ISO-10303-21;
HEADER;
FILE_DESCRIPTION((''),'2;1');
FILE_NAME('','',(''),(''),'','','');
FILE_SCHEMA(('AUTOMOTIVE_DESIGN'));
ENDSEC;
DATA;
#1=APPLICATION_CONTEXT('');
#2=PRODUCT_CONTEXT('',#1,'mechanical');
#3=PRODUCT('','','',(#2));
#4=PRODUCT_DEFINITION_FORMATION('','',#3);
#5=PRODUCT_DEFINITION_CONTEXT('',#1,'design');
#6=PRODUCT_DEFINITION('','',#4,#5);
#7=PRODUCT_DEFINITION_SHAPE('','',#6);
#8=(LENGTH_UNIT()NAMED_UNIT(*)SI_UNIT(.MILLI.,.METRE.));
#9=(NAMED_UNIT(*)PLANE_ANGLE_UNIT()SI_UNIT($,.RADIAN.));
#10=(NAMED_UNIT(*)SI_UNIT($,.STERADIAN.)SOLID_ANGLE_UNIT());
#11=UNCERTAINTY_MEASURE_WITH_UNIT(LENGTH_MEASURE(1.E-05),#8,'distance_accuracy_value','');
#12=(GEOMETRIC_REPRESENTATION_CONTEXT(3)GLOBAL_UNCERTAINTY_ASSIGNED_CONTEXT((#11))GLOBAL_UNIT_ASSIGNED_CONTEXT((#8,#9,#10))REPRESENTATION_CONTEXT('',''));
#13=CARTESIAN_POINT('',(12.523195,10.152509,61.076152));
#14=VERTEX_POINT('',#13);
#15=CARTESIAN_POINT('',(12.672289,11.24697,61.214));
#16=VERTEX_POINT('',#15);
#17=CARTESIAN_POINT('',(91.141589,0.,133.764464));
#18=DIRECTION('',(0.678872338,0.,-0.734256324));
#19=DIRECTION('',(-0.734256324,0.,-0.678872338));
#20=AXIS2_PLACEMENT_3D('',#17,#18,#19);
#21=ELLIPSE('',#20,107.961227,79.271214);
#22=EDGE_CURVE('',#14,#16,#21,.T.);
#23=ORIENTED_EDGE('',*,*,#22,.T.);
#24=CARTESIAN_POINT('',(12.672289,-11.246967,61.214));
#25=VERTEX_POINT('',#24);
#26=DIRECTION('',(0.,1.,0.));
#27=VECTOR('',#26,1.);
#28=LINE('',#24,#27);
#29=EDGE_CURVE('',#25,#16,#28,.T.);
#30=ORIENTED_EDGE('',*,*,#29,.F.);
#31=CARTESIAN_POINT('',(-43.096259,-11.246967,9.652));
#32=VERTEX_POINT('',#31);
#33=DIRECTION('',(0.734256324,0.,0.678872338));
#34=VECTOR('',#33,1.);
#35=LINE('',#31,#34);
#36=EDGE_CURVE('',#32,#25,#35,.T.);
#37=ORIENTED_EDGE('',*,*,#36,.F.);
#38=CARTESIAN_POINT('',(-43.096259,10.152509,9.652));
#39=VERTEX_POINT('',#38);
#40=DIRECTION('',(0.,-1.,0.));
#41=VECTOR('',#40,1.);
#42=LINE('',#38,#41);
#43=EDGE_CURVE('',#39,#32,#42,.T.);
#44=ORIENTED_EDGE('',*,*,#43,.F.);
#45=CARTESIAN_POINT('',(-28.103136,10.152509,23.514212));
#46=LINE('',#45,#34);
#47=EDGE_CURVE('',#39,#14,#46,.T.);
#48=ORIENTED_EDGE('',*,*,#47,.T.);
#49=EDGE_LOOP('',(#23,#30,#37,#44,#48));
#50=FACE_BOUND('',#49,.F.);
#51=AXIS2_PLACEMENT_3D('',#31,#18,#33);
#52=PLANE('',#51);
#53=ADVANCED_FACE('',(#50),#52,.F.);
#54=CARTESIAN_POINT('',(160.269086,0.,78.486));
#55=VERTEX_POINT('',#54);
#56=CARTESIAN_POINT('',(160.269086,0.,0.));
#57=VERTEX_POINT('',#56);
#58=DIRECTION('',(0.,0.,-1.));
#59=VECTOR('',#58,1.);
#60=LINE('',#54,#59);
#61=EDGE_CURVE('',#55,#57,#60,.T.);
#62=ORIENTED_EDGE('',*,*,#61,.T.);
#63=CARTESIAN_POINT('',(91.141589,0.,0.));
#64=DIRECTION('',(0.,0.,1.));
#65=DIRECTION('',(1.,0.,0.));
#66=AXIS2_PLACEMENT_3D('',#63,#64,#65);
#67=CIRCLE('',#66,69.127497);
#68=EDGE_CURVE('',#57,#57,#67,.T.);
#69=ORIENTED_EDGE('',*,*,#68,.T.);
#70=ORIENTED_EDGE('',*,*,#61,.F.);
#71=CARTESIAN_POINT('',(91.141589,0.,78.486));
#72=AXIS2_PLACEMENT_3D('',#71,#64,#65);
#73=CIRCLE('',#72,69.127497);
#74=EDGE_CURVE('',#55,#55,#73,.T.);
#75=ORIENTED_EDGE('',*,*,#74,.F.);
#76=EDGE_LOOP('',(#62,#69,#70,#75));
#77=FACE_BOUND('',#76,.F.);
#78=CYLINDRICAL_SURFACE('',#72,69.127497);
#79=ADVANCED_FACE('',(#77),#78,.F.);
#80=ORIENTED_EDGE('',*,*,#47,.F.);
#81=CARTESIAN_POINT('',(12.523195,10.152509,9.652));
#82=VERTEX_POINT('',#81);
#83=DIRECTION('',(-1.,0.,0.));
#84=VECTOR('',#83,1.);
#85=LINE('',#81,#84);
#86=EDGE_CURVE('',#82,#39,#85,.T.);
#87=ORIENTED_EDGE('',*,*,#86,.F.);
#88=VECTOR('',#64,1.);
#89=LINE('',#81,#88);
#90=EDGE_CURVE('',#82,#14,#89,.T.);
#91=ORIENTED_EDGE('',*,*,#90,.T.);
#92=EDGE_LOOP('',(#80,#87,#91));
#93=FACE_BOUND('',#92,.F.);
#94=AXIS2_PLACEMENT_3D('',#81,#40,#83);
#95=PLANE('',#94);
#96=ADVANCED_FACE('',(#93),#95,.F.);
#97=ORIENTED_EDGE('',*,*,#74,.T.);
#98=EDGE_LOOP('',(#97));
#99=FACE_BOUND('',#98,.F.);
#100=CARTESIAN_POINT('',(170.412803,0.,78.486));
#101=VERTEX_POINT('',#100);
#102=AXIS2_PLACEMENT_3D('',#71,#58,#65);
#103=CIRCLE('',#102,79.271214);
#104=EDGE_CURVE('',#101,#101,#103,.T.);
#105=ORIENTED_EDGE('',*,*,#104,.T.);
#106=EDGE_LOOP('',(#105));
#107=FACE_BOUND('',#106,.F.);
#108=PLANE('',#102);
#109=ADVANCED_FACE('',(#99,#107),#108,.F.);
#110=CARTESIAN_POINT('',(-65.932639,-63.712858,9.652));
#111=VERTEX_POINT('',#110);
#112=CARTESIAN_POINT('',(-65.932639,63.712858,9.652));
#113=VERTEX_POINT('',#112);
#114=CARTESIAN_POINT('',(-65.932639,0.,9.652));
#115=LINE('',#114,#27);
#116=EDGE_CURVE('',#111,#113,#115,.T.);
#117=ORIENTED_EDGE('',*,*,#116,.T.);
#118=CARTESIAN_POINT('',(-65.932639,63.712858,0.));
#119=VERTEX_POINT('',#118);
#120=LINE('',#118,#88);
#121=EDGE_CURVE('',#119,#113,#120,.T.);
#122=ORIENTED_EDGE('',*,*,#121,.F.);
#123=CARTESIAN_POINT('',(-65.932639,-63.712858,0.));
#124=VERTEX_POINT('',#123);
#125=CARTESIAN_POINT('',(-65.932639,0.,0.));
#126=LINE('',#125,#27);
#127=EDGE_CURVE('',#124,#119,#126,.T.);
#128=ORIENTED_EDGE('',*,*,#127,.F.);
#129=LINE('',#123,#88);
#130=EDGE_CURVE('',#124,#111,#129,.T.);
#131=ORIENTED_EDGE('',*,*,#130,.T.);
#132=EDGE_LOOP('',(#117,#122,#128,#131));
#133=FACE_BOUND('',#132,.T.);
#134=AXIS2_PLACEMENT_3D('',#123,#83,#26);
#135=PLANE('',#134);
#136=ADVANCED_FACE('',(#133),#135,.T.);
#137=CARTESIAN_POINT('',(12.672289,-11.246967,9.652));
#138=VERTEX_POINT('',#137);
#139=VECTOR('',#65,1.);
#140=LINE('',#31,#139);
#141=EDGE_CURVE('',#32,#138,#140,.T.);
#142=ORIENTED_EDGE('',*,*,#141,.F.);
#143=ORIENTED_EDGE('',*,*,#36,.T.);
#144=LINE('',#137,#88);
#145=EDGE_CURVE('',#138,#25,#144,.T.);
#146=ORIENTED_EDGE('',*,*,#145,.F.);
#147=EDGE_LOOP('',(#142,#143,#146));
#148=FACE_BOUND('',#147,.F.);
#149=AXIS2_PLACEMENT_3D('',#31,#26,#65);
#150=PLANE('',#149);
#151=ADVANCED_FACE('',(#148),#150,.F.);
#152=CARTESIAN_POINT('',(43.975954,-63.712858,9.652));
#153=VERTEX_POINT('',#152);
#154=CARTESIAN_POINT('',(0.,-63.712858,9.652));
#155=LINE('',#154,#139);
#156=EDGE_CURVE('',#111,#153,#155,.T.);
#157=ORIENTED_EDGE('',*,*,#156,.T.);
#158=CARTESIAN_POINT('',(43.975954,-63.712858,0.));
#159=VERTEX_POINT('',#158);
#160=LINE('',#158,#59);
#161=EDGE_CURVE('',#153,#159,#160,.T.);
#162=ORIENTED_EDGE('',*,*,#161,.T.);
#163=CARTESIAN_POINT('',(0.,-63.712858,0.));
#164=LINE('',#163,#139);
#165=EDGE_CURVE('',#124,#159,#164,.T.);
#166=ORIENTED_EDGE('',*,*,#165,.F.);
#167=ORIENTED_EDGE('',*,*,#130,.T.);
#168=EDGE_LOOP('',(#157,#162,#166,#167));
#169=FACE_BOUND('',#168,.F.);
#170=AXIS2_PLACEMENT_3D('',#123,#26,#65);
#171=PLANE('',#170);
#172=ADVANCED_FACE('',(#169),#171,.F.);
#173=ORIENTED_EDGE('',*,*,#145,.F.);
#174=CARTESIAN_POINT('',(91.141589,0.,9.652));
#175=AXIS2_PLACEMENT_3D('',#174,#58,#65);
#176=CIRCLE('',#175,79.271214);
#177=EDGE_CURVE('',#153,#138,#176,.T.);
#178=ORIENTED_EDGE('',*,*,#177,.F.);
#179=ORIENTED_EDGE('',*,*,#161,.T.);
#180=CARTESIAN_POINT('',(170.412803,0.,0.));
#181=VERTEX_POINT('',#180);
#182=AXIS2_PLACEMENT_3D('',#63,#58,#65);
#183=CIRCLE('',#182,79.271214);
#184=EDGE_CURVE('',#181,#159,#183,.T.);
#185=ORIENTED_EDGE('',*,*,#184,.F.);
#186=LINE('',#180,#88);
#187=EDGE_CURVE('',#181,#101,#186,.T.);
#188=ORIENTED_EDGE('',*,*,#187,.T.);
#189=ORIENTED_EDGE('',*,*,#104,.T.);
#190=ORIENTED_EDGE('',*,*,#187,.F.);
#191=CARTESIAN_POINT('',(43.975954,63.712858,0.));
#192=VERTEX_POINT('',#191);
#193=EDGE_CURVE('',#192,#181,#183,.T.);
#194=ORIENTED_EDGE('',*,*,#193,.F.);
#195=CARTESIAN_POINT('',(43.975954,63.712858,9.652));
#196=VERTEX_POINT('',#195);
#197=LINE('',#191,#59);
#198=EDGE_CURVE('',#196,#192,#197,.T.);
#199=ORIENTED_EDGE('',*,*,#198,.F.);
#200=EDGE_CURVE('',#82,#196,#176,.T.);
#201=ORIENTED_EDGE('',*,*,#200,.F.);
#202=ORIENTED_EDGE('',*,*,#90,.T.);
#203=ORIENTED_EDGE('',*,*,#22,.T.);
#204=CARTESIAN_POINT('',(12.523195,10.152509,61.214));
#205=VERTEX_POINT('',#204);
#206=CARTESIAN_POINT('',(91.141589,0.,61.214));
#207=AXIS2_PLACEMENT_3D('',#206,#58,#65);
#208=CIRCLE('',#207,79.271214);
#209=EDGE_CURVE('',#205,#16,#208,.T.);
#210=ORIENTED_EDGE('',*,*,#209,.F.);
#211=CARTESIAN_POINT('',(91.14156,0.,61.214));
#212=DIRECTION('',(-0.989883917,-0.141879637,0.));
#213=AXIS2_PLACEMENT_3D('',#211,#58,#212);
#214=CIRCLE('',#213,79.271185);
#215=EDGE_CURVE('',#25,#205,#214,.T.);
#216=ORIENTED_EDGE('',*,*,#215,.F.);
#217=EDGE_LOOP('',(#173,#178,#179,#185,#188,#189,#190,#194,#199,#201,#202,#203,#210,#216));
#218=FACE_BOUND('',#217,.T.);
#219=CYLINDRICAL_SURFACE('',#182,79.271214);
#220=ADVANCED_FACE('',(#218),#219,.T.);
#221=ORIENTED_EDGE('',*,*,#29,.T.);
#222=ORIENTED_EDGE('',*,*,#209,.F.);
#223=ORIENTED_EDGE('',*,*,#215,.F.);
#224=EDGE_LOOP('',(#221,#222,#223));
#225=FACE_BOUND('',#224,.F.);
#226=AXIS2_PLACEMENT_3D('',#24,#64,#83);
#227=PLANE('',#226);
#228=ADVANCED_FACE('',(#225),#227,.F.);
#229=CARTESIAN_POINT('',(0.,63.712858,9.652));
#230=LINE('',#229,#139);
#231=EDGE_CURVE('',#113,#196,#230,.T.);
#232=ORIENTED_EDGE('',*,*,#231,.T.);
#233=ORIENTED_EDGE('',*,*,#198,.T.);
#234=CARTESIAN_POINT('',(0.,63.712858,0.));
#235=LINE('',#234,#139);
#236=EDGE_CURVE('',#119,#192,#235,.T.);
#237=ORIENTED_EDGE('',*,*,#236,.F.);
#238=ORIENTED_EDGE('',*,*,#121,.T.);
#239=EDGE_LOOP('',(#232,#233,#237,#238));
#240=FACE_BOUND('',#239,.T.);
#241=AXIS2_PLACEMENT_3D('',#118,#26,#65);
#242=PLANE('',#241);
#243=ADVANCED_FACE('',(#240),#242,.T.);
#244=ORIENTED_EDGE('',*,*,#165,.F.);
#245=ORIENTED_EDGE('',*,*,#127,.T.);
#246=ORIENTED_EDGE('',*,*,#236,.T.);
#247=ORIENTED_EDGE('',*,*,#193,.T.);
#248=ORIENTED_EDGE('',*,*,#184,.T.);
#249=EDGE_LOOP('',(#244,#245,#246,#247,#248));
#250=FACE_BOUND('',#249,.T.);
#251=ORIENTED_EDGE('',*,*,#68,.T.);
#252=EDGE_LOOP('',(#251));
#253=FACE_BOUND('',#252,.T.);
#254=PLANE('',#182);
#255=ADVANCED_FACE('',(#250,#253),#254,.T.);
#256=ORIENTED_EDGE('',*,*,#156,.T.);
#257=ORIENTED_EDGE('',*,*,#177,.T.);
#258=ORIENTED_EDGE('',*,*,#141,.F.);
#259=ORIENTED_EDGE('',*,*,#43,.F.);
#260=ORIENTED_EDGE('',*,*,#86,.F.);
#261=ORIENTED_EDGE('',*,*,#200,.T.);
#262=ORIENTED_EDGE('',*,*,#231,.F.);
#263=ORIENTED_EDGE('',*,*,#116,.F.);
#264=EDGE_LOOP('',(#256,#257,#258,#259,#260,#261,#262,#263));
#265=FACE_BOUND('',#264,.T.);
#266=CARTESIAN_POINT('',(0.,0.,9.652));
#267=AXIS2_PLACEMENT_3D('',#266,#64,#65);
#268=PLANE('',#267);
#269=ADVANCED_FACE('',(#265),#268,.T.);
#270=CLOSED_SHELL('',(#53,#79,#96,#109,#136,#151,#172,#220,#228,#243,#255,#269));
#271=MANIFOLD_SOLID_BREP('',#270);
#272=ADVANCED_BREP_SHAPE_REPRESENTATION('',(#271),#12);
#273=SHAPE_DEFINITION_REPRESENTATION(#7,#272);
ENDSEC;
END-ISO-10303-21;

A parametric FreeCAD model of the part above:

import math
import FreeCAD as App
import Part
import Sketcher
Q = App.Units.Quantity


def add_polygon(sketch, points):
    """Adds a closed chain of lines whose ends are joined by coincident constraints."""
    first, n = sketch.GeometryCount, len(points)
    for a, b in zip(points, points[1:] + points[:1]):
        sketch.addGeometry(Part.LineSegment(App.Vector(*a, 0), App.Vector(*b, 0)), False)
    for i in range(n):
        sketch.addConstraint(Sketcher.Constraint("Coincident", first + i, 2, first + (i + 1) % n, 1))

doc = App.newDocument("Part")
params = doc.addObject("Spreadsheet::Sheet", "Params")
for row, (alias, value) in enumerate([
    ("pad1_length", "0.38 in"),
    ("pad2_length", "3.09 in"),
    ("pocket1_length", "6.81 in"),
    ("pad3_length", "2.03 in"),
    ("sketch5_height", "2.03 in"),
    ("pocket2_length", "1 in"),
], start=1):
    params.set(f"A{row}", alias)
    params.set(f"B{row}", "=" + value)
    params.setAlias(f"B{row}", alias)

body = doc.addObject("PartDesign::Body", "Body")

sketch1 = body.newObject("Sketcher::SketchObject", "Sketch")
sketch1.AttachmentSupport = (doc.getObject("XY_Plane"), [""])
sketch1.MapMode = "FlatFace"
add_polygon(sketch1, [(-65.932639, 63.712858), (-65.932639, -63.712858), (65.932639, -63.712858), (65.932639, 63.712858)])
sketch1.addConstraint([
    Sketcher.Constraint("Vertical", 0),
    Sketcher.Constraint("Horizontal", 1),
    Sketcher.Constraint("Vertical", 2),
    Sketcher.Constraint("Horizontal", 3),
    Sketcher.Constraint("Symmetric", 0, 2, 2, 2, -1, 1),
    Sketcher.Constraint("DistanceX", 1, 1, 1, 2, 131.865278),
    Sketcher.Constraint("DistanceY", 0, 2, 0, 1, 127.425716),
])
pad1 = body.newObject("PartDesign::Pad", "Pad")
pad1.Profile = sketch1
pad1.setExpression("Length", "Params.pad1_length")

sketch2 = body.newObject("Sketcher::SketchObject", "Sketch001")
sketch2.AttachmentSupport = (doc.getObject("XY_Plane"), [""])
sketch2.MapMode = "FlatFace"
sketch2.addGeometry(Part.Circle(App.Vector(91.141589, 0, 0), App.Vector(0, 0, 1), 79.271214), False)
sketch2.addConstraint([
    Sketcher.Constraint("PointOnObject", 0, 3, -1),
    Sketcher.Constraint("Diameter", 0, 158.542428),
    Sketcher.Constraint("DistanceX", -1, 1, 0, 3, 91.141589),
])
pad2 = body.newObject("PartDesign::Pad", "Pad001")
pad2.Profile = sketch2
pad2.setExpression("Length", "Params.pad2_length")

sketch3 = body.newObject("Sketcher::SketchObject", "Sketch002")
sketch3.AttachmentSupport = (doc.getObject("XY_Plane"), [""])
sketch3.MapMode = "FlatFace"
sketch3.AttachmentOffset = App.Placement(App.Vector(0, 0, 3.09 * 25.4), App.Rotation())
sketch3.addGeometry(Part.Circle(App.Vector(91.141589, 0, 0), App.Vector(0, 0, 1), 69.127497), False)
sketch3.addConstraint([
    Sketcher.Constraint("PointOnObject", 0, 3, -1),
    Sketcher.Constraint("Diameter", 0, 138.254994),
    Sketcher.Constraint("DistanceX", -1, 1, 0, 3, 91.141589),
])
pocket1 = body.newObject("PartDesign::Pocket", "Pocket")
pocket1.Profile = sketch3
pocket1.setExpression("Length", "Params.pocket1_length")

sketch4 = body.newObject("Sketcher::SketchObject", "Sketch003")
sketch4.AttachmentSupport = (doc.getObject("XY_Plane"), [""])
sketch4.MapMode = "FlatFace"
sketch4.AttachmentOffset = App.Placement(App.Vector(0, 0, 0.38 * 25.4), App.Rotation())
sketch4.addGeometry([
    Part.LineSegment(App.Vector(-43.096259, 10.152509, 0), App.Vector(-43.096259, -11.246967, 0)),
    Part.LineSegment(App.Vector(-43.096259, -11.246967, 0), App.Vector(12.672289, -11.246967, 0)),
    Part.ArcOfCircle(Part.Circle(App.Vector(91.14156, 0, 0), App.Vector(0, 0, 1), 79.271185), math.radians(172.64174), math.radians(188.156627)),
    Part.LineSegment(App.Vector(12.523195, 10.152509, 0), App.Vector(-43.096259, 10.152509, 0)),
], False)
sketch4.addConstraint([
    Sketcher.Constraint("Coincident", 0, 2, 1, 1),
    Sketcher.Constraint("Coincident", 1, 2, 2, 2),
    Sketcher.Constraint("Coincident", 2, 1, 3, 1),
    Sketcher.Constraint("Coincident", 3, 2, 0, 1),
    Sketcher.Constraint("Vertical", 0),
    Sketcher.Constraint("Horizontal", 1),
    Sketcher.Constraint("Horizontal", 3),
    Sketcher.Constraint("PointOnObject", 2, 3, -1),
    Sketcher.Constraint("Radius", 2, 79.271185),
    Sketcher.Constraint("DistanceX", 1, 1, 1, 2, 55.768548),
    Sketcher.Constraint("DistanceX", 3, 2, 3, 1, 55.619454),
    Sketcher.Constraint("DistanceY", 0, 2, 0, 1, 21.399476),
    Sketcher.Constraint("DistanceX", -1, 1, 2, 3, 91.14156),
])
pad3 = body.newObject("PartDesign::Pad", "Pad002")
pad3.Profile = sketch4
pad3.setExpression("Length", "Params.pad3_length")

sketch5 = body.newObject("Sketcher::SketchObject", "Sketch004")
sketch5.AttachmentSupport = (doc.getObject("XZ_Plane"), [""])
sketch5.MapMode = "FlatFace"
sketch5.AttachmentOffset = App.Placement(App.Vector(0, 0, 11.246967), App.Rotation())
add_polygon(sketch5, [(-43.096259, 61.214), (-43.096259, 9.652), (12.672289, 61.214)])
sketch5.addConstraint([
    Sketcher.Constraint("Vertical", 0),
    Sketcher.Constraint("Horizontal", 2),
    Sketcher.Constraint("DistanceY", 0, 2, 0, 1, Q("2.03 in")),
    Sketcher.Constraint("DistanceY", -1, 1, 0, 2, Q("0.38 in")),
    Sketcher.Constraint("DistanceX", 2, 2, 2, 1, 55.768548),
    Sketcher.Constraint("DistanceX", 0, 2, -1, 1, 43.096259),
])
sketch5.setExpression("Constraints[5]", "Params.sketch5_height")
pocket2 = body.newObject("PartDesign::Pocket", "Pocket001")
pocket2.Profile = sketch5
pocket2.setExpression("Length", "Params.pocket2_length")

doc.recompute()
